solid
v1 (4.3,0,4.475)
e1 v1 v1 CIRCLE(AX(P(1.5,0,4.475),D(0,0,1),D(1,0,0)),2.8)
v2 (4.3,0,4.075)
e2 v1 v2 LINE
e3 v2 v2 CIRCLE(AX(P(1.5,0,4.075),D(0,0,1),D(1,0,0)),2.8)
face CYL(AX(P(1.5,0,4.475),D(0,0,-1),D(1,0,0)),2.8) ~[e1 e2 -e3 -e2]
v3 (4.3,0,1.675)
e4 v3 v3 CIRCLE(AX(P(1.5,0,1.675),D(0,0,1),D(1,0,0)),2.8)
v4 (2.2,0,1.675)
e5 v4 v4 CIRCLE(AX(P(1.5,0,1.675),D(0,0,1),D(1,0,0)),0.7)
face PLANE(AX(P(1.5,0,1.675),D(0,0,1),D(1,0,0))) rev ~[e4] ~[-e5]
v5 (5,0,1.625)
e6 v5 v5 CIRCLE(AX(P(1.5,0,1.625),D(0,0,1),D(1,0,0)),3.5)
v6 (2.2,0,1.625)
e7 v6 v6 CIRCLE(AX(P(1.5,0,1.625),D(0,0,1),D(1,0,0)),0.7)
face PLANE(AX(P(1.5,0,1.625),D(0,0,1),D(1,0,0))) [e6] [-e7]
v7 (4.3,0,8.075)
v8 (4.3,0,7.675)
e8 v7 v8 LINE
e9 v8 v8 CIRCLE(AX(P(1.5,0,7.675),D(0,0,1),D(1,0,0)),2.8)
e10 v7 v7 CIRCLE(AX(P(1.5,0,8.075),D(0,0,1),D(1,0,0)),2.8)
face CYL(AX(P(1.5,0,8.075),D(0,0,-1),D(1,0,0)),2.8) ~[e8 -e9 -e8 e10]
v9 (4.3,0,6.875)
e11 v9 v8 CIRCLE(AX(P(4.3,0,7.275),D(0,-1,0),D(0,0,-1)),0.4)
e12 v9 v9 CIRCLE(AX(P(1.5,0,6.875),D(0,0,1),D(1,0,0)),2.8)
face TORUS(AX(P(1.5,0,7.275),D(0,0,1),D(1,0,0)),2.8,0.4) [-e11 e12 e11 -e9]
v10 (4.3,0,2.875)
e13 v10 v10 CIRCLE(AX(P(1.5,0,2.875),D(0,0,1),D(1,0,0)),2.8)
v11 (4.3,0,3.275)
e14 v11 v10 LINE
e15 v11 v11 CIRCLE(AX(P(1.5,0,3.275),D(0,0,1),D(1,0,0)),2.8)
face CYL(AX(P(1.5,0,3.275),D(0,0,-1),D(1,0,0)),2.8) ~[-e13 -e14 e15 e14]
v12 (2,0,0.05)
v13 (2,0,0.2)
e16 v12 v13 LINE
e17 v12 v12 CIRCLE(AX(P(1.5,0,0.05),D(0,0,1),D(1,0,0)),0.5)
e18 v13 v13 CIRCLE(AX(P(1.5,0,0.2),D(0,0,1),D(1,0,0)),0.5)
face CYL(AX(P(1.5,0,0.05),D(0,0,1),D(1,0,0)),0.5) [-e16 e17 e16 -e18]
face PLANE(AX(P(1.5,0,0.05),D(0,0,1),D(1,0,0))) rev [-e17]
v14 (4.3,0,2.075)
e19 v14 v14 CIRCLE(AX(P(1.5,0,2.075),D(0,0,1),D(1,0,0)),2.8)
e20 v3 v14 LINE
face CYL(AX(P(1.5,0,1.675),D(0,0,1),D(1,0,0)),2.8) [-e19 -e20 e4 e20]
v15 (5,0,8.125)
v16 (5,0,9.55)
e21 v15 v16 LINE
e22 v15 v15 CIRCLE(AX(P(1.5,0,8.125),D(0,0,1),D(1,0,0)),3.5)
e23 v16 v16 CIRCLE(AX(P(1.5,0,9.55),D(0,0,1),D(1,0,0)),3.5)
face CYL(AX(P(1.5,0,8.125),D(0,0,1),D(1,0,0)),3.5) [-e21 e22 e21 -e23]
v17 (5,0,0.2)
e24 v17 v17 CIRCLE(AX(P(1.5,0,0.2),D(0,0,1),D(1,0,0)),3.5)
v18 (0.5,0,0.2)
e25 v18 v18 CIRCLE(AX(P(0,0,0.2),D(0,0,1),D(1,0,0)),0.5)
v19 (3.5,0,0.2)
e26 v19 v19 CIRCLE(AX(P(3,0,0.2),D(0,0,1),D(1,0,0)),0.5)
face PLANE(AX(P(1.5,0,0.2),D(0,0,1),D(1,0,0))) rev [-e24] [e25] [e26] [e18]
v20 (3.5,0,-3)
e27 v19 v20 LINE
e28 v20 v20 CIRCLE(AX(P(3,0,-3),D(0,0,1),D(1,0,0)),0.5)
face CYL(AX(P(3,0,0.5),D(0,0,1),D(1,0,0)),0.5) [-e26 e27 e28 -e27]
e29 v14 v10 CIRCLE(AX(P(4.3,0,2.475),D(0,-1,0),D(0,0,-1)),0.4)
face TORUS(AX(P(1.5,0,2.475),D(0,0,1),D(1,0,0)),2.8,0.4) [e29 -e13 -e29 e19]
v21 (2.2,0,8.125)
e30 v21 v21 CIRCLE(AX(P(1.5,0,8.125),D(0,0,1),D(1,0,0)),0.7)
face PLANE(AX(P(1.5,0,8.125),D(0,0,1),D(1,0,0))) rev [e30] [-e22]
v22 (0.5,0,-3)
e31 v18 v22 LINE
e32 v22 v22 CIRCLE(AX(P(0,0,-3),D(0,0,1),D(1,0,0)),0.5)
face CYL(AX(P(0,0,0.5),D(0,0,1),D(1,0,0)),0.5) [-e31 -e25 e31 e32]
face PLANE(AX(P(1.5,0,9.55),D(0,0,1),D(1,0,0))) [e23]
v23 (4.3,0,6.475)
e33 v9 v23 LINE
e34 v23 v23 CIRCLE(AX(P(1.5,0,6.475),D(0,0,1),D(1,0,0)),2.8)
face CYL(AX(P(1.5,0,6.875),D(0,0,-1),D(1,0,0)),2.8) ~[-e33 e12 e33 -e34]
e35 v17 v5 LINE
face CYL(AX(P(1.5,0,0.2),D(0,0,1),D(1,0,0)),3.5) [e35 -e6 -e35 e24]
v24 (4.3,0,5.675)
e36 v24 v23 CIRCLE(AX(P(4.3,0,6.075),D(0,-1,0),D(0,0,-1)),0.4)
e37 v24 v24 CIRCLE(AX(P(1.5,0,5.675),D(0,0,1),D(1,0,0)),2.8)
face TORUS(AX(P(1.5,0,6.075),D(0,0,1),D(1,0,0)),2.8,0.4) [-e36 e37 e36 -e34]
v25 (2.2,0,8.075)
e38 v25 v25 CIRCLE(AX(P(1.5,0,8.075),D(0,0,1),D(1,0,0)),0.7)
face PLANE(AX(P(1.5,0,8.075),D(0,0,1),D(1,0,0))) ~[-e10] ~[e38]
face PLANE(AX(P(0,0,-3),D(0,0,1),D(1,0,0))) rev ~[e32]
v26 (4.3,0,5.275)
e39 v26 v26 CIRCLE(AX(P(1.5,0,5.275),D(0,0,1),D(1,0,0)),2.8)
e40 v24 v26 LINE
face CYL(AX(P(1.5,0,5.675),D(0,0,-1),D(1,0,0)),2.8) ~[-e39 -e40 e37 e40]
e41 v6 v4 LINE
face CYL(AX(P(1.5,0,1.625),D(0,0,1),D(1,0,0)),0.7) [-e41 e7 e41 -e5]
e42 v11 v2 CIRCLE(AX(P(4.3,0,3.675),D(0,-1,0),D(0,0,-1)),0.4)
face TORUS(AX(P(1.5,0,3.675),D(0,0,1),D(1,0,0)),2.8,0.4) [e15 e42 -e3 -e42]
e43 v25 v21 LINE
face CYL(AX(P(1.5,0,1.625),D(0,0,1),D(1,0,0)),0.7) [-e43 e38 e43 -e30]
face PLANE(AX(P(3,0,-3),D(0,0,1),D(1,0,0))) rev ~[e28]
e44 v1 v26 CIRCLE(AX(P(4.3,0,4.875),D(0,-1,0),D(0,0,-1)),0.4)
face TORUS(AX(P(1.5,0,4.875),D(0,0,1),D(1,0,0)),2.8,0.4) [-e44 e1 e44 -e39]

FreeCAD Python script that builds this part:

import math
import FreeCAD as App
import Part
import Sketcher

V = App.Vector
Q = App.Units.Quantity

doc = App.newDocument("Part")
params = doc.addObject("Spreadsheet::Sheet", "Params")
for row, (alias, value) in enumerate([
    ("sketch1_width", "3 mm"),
    ("sketch1_width2", "0.5 mm"),
    ("sketch1_width3", "2.8 mm"),
    ("sketch1_height", "6.5 mm"),
    ("sketch1_height2", "9.5 mm"),
    ("revolution_angle", "360 deg"),
    ("sketch2_diameter", "1 mm"),
    ("pad1_length", "3.5 mm"),
    ("sketch3_radius", "0.4 mm"),
    ("sketch3_width", "2.1 mm"),
    ("sketch3_height", "0.4 mm"),
    ("revolution2_angle", "360 deg"),
], start=1):
    params.set(f"A{row}", alias)
    params.set(f"B{row}", "=" + value)
    params.setAlias(f"B{row}", alias)

body = doc.addObject("PartDesign::Body", "Body")

# Sketch on XZ plane
sketch1 = body.newObject("Sketcher::SketchObject", "Sketch")
sketch1.AttachmentSupport = (doc.getObject("XZ_Plane"), [""])
sketch1.MapMode = "FlatFace"
sketch1.addGeometry([
    Part.LineSegment(V(1.5, 0.05, 0), V(2, 0.05, 0)),  # 0
    Part.LineSegment(V(2, 0.05, 0), V(2, 0.2, 0)),  # 1
    Part.LineSegment(V(2, 0.2, 0), V(5, 0.2, 0)),  # 2
    Part.LineSegment(V(5, 0.2, 0), V(5, 1.62, 0)),  # 3
    Part.LineSegment(V(5, 1.62, 0), V(2.2, 1.62, 0)),  # 4
    Part.LineSegment(V(2.2, 1.62, 0), V(2.2, 8.12, 0)),  # 5
    Part.LineSegment(V(2.2, 8.12, 0), V(5, 8.12, 0)),  # 6
    Part.LineSegment(V(5, 8.12, 0), V(5, 9.55, 0)),  # 7
    Part.LineSegment(V(5, 9.55, 0), V(1.5, 9.55, 0)),  # 8
    Part.LineSegment(V(1.5, 9.55, 0), V(1.5, 0.05, 0)),  # 9
], False)
sketch1.addGeometry(Part.LineSegment(V(1.5, 0.05, 0), V(1.5, 9.55, 0)), True)  # axis
sketch1.addConstraint([
    Sketcher.Constraint("Coincident", 0, 2, 1, 1),
    Sketcher.Constraint("Coincident", 1, 2, 2, 1),
    Sketcher.Constraint("Coincident", 2, 2, 3, 1),
    Sketcher.Constraint("Coincident", 3, 2, 4, 1),
    Sketcher.Constraint("Coincident", 4, 2, 5, 1),
    Sketcher.Constraint("Coincident", 5, 2, 6, 1),
    Sketcher.Constraint("Coincident", 6, 2, 7, 1),
    Sketcher.Constraint("Coincident", 7, 2, 8, 1),
    Sketcher.Constraint("Coincident", 8, 2, 9, 1),
    Sketcher.Constraint("Coincident", 9, 2, 0, 1),
    Sketcher.Constraint("Horizontal", 0),
    Sketcher.Constraint("Vertical", 1),
    Sketcher.Constraint("Horizontal", 2),
    Sketcher.Constraint("Vertical", 3),
    Sketcher.Constraint("Horizontal", 4),
    Sketcher.Constraint("Vertical", 5),
    Sketcher.Constraint("Horizontal", 6),
    Sketcher.Constraint("Vertical", 7),
    Sketcher.Constraint("Horizontal", 8),
    Sketcher.Constraint("Vertical", 9),
    Sketcher.Constraint("Vertical", 10),
    Sketcher.Constraint("Coincident", 10, 1, 9, 2),
    Sketcher.Constraint("Horizontal", 7, 2, 10, 2),
    Sketcher.Constraint("Vertical", 3, 2, 6, 2),
    Sketcher.Constraint("Equal", 3, 7),
    Sketcher.Constraint("DistanceX", 2, 1, 2, 2, Q("3 mm")),
    Sketcher.Constraint("DistanceX", 0, 1, 0, 2, Q("0.5 mm")),
    Sketcher.Constraint("DistanceX", 4, 2, 4, 1, Q("2.8 mm")),
    Sketcher.Constraint("DistanceY", 5, 1, 5, 2, Q("6.5 mm")),
    Sketcher.Constraint("DistanceY", 9, 2, 9, 1, Q("9.5 mm")),
    Sketcher.Constraint("DistanceX", -1, 1, 0, 2, Q("2 mm")),
    Sketcher.Constraint("DistanceY", 1, 1, 1, 2, Q("0.15 mm")),
    Sketcher.Constraint("DistanceY", -1, 1, 1, 2, Q("0.2 mm")),
])
sketch1.setExpression("Constraints[25]", "Params.sketch1_width")
sketch1.setExpression("Constraints[26]", "Params.sketch1_width2")
sketch1.setExpression("Constraints[27]", "Params.sketch1_width3")
sketch1.setExpression("Constraints[28]", "Params.sketch1_height")
sketch1.setExpression("Constraints[29]", "Params.sketch1_height2")
revolution = body.newObject("PartDesign::Revolution", "Revolution")
revolution.Profile = sketch1
revolution.ReferenceAxis = (sketch1, ["Axis0"])
revolution.setExpression("Angle", "Params.revolution_angle")
body2 = doc.addObject("PartDesign::Body", "Body001")
body2.AllowCompound = True

# Sketch on XY plane
sketch2 = body2.newObject("Sketcher::SketchObject", "Sketch001")
sketch2.AttachmentSupport = (doc.getObject("XY_Plane001"), [""])
sketch2.MapMode = "FlatFace"
sketch2.AttachmentOffset = App.Placement(V(0, 0, 0.5), App.Rotation())
sketch2.addGeometry([
    Part.Circle(V(0, 0, 0), V(0, 0, 1), 0.5),
    Part.Circle(V(3, 0, 0), V(0, 0, 1), 0.5),
], False)
sketch2.addConstraint([
    Sketcher.Constraint("Coincident", 0, 3, -1, 1),
    Sketcher.Constraint("Equal", 0, 1),
    Sketcher.Constraint("PointOnObject", 1, 3, -1),
    Sketcher.Constraint("Diameter", 0, Q("1 mm")),
    Sketcher.Constraint("DistanceX", -1, 1, 1, 3, Q("3 mm")),
])
sketch2.setExpression("Constraints[3]", "Params.sketch2_diameter")
pad1 = body2.newObject("PartDesign::Pad", "Pad")
pad1.Profile = sketch2
pad1.setExpression("Length", "Params.pad1_length")
pad1.Reversed = True
body3 = doc.addObject("PartDesign::Body", "Body002")

# Sketch on XZ plane
sketch3 = body3.newObject("Sketcher::SketchObject", "Sketch002")
sketch3.AttachmentSupport = (doc.getObject("XZ_Plane002"), [""])
sketch3.MapMode = "FlatFace"
sketch3.addGeometry([
    Part.LineSegment(V(2.2, 1.68, 0), V(4.3, 1.68, 0)),  # 0
    Part.LineSegment(V(4.3, 1.68, 0), V(4.3, 2.08, 0)),  # 1
    Part.ArcOfCircle(Part.Circle(V(4.3, 2.48, 0), V(0, 0, 1), 0.4), math.radians(-90), math.radians(90)),  # 2
    Part.LineSegment(V(4.3, 2.88, 0), V(4.3, 3.27, 0)),  # 3
    Part.ArcOfCircle(Part.Circle(V(4.3, 3.67, 0), V(0, 0, 1), 0.4), math.radians(-90), math.radians(90)),  # 4
    Part.LineSegment(V(4.3, 4.08, 0), V(4.3, 4.47, 0)),  # 5
    Part.ArcOfCircle(Part.Circle(V(4.3, 4.88, 0), V(0, 0, 1), 0.4), math.radians(-90), math.radians(90)),  # 6
    Part.LineSegment(V(4.3, 5.28, 0), V(4.3, 5.67, 0)),  # 7
    Part.ArcOfCircle(Part.Circle(V(4.3, 6.08, 0), V(0, 0, 1), 0.4), math.radians(-90), math.radians(90)),  # 8
    Part.LineSegment(V(4.3, 6.47, 0), V(4.3, 6.88, 0)),  # 9
    Part.ArcOfCircle(Part.Circle(V(4.3, 7.28, 0), V(0, 0, 1), 0.4), math.radians(-90), math.radians(90)),  # 10
    Part.LineSegment(V(4.3, 7.67, 0), V(4.3, 8.07, 0)),  # 11
    Part.LineSegment(V(4.3, 8.07, 0), V(2.2, 8.07, 0)),  # 12
    Part.LineSegment(V(2.2, 8.07, 0), V(2.2, 1.68, 0)),  # 13
], False)
sketch3.addGeometry(Part.LineSegment(V(1.5, 1.68, 0), V(1.5, 8.07, 0)), True)  # axis
sketch3.addConstraint([
    Sketcher.Constraint("Coincident", 0, 2, 1, 1),
    Sketcher.Constraint("Coincident", 1, 2, 2, 1),
    Sketcher.Constraint("Coincident", 2, 2, 3, 1),
    Sketcher.Constraint("Coincident", 3, 2, 4, 1),
    Sketcher.Constraint("Coincident", 4, 2, 5, 1),
    Sketcher.Constraint("Coincident", 5, 2, 6, 1),
    Sketcher.Constraint("Coincident", 6, 2, 7, 1),
    Sketcher.Constraint("Coincident", 7, 2, 8, 1),
    Sketcher.Constraint("Coincident", 8, 2, 9, 1),
    Sketcher.Constraint("Coincident", 9, 2, 10, 1),
    Sketcher.Constraint("Coincident", 10, 2, 11, 1),
    Sketcher.Constraint("Coincident", 11, 2, 12, 1),
    Sketcher.Constraint("Coincident", 12, 2, 13, 1),
    Sketcher.Constraint("Coincident", 13, 2, 0, 1),
    Sketcher.Constraint("Horizontal", 0),
    Sketcher.Constraint("Vertical", 1),
    Sketcher.Constraint("Vertical", 3),
    Sketcher.Constraint("Vertical", 5),
    Sketcher.Constraint("Vertical", 7),
    Sketcher.Constraint("Vertical", 9),
    Sketcher.Constraint("Vertical", 11),
    Sketcher.Constraint("Horizontal", 12),
    Sketcher.Constraint("Vertical", 13),
    Sketcher.Constraint("Vertical", 14),
    Sketcher.Constraint("Equal", 2, 4),
    Sketcher.Constraint("Equal", 4, 6),
    Sketcher.Constraint("Equal", 6, 8),
    Sketcher.Constraint("Equal", 8, 10),
    Sketcher.Constraint("Horizontal", 13, 2, 14, 1),
    Sketcher.Constraint("Horizontal", 12, 2, 14, 2),
    Sketcher.Constraint("Vertical", 2, 3, 4, 3),
    Sketcher.Constraint("Vertical", 4, 3, 6, 3),
    Sketcher.Constraint("Vertical", 6, 3, 8, 3),
    Sketcher.Constraint("Vertical", 8, 3, 10, 3),
    Sketcher.Constraint("Vertical", 10, 3, 0, 2),
    Sketcher.Constraint("Vertical", 1, 2, 2, 2),
    Sketcher.Constraint("Vertical", 3, 2, 4, 2),
    Sketcher.Constraint("Vertical", 5, 2, 6, 2),
    Sketcher.Constraint("Vertical", 7, 2, 8, 2),
    Sketcher.Constraint("Vertical", 9, 2, 10, 2),
    Sketcher.Constraint("Equal", 1, 3),
    Sketcher.Constraint("Equal", 3, 5),
    Sketcher.Constraint("Equal", 5, 7),
    Sketcher.Constraint("Equal", 7, 9),
    Sketcher.Constraint("Equal", 9, 11),
    Sketcher.Constraint("Radius", 2, Q("0.4 mm")),
    Sketcher.Constraint("DistanceX", 0, 1, 0, 2, Q("2.1 mm")),
    Sketcher.Constraint("DistanceY", 1, 1, 1, 2, Q("0.4 mm")),
    Sketcher.Constraint("DistanceX", -1, 1, 2, 3, Q("4.3 mm")),
    Sketcher.Constraint("DistanceX", -1, 1, 14, 1, Q("1.5 mm")),
    Sketcher.Constraint("DistanceY", -1, 1, 2, 3, Q("2.475 mm")),
])
sketch3.setExpression("Constraints[45]", "Params.sketch3_radius")
sketch3.setExpression("Constraints[46]", "Params.sketch3_width")
sketch3.setExpression("Constraints[47]", "Params.sketch3_height")
revolution2 = body3.newObject("PartDesign::Revolution", "Revolution001")
revolution2.Profile = sketch3
revolution2.ReferenceAxis = (sketch3, ["Axis0"])
revolution2.setExpression("Angle", "Params.revolution2_angle")
doc.recompute()

boolean = body3.newObject("PartDesign::Boolean", "Boolean")
boolean.Type = "Fuse"
boolean.addObjects([body])
doc.recompute()

boolean2 = body3.newObject("PartDesign::Boolean", "Boolean001")
boolean2.Type = "Fuse"
boolean2.addObjects([body2])

doc.recompute()
